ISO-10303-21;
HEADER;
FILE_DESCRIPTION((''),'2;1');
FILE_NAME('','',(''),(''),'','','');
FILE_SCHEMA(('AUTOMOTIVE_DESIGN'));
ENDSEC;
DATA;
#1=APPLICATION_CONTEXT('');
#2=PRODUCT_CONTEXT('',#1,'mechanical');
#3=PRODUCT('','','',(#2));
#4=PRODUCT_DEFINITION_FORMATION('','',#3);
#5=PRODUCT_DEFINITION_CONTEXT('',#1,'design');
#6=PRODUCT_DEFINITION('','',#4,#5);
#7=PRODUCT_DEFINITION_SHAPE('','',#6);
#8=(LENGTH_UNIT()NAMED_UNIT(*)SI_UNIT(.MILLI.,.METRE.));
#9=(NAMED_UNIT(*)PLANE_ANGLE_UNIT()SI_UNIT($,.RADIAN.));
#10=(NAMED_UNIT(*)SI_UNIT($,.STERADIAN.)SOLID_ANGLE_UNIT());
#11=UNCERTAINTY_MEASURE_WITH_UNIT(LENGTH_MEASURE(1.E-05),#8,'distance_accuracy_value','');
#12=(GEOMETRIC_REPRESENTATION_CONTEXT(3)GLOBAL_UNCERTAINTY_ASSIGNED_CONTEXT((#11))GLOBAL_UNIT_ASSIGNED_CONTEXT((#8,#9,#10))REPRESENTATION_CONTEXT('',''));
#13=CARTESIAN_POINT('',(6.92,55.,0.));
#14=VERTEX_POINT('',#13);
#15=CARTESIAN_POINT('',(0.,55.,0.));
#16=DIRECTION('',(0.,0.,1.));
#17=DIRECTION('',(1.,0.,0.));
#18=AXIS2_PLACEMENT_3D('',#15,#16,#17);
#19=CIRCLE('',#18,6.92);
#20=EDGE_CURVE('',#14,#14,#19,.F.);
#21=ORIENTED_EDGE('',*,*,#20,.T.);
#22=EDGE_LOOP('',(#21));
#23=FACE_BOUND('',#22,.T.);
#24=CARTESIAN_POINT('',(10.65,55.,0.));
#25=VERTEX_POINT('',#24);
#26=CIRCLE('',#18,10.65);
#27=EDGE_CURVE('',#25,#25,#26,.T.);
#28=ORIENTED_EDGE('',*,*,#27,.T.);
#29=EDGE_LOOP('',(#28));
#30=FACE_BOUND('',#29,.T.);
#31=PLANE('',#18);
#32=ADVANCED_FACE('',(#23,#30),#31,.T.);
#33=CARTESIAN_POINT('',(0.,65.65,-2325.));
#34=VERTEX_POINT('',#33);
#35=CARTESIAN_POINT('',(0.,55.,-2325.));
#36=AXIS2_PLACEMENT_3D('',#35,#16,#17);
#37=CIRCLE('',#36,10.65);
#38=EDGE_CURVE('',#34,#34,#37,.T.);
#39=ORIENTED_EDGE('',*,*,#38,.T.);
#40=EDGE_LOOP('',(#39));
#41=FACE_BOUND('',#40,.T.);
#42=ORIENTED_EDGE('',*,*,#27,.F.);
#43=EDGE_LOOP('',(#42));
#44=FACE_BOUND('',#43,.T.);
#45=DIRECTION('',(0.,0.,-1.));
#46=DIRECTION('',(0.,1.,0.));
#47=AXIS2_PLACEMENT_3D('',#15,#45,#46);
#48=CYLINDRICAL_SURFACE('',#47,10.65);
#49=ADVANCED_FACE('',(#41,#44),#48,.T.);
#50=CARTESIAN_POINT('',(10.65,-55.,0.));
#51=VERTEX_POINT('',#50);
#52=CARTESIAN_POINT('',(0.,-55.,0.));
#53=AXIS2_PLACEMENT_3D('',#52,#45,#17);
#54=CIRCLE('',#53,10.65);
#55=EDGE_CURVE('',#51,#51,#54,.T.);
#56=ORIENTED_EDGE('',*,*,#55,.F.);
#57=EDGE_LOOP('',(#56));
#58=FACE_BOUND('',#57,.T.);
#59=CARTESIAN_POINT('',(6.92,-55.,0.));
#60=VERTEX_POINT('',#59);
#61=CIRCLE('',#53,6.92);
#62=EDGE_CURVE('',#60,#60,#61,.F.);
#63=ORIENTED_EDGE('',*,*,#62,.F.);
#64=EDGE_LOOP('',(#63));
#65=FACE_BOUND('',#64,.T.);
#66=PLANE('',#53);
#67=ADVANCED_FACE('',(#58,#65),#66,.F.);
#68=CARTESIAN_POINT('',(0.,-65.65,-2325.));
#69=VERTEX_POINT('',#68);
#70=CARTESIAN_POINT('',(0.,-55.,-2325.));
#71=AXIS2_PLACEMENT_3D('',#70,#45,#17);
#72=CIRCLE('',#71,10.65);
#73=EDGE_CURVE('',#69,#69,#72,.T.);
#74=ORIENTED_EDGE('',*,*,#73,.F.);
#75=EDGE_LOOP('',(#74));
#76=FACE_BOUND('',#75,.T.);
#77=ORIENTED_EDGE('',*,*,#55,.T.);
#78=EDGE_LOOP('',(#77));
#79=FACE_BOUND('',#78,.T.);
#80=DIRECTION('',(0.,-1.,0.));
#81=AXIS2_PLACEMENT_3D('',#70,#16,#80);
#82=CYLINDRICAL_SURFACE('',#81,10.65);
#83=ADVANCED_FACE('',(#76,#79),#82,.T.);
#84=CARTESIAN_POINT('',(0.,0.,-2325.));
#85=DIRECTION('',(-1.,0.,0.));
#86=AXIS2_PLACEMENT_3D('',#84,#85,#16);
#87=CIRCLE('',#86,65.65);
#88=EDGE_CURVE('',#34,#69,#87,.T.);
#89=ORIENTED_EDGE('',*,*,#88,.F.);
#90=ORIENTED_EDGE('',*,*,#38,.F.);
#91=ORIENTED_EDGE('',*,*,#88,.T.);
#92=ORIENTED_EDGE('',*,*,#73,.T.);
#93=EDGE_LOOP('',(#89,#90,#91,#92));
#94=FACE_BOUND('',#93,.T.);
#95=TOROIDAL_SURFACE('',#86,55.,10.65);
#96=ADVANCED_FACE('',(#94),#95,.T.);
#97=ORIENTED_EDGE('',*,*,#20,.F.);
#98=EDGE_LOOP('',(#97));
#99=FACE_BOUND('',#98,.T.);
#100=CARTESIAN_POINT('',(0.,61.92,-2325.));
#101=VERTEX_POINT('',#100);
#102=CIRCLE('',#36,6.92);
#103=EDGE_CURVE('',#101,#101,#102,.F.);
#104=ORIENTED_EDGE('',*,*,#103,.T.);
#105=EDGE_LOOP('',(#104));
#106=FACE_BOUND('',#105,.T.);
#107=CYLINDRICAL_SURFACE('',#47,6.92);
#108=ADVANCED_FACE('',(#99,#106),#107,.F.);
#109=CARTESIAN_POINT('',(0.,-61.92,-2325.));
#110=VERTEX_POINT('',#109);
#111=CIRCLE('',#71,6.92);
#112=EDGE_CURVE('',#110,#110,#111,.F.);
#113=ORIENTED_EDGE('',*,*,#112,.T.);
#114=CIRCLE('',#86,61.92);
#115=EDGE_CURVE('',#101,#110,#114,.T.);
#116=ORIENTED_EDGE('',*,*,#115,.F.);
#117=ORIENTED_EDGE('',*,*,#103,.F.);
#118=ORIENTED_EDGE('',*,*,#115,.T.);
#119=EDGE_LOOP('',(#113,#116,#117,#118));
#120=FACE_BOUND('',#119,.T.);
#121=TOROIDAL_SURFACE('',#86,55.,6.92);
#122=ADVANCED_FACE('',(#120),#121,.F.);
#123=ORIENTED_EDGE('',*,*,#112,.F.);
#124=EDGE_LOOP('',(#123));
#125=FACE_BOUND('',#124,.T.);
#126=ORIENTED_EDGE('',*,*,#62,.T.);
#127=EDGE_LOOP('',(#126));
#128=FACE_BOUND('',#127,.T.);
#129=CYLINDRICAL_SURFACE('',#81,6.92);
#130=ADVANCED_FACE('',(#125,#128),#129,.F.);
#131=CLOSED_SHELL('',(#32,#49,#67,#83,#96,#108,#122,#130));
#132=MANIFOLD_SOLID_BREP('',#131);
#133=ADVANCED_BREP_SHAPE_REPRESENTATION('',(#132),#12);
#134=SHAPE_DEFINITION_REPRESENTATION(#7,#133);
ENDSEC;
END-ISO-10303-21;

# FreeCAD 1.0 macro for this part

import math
import FreeCAD as App
import Part
import Sketcher
Q = App.Units.Quantity

doc = App.newDocument("Part")
body = doc.addObject("PartDesign::Body", "Body")

# Sketch on XY plane
sketch1 = doc.addObject("Sketcher::SketchObject", "Sketch")
body.addObject(sketch1)
sketch1.AttachmentSupport = (doc.XY_Plane, [""])
sketch1.MapMode = "FlatFace"
sketch1.addGeometry(Part.Circle(App.Vector(0, 55, 0), App.Vector(0, 0, 1), 11), False)
sketch1.addGeometry(Part.Circle(App.Vector(0, 55, 0), App.Vector(0, 0, 1), 7), False)
sketch1.addConstraint(Sketcher.Constraint("Coincident", 1, 3, 0, 3))
sketch1.addConstraint(Sketcher.Constraint("PointOnObject", 0, 3, -2))
sketch1.addConstraint(Sketcher.Constraint("Diameter", 0, Q("21.3 mm")))
sketch1.addConstraint(Sketcher.Constraint("Diameter", 1, Q("13.84 mm")))
sketch1.addConstraint(Sketcher.Constraint("DistanceY", -1, 1, 0, 3, Q("55 mm")))

# Sketch on YZ plane
sketch2 = doc.addObject("Sketcher::SketchObject", "Sketch001")
body.addObject(sketch2)
sketch2.AttachmentSupport = (doc.YZ_Plane, [""])
sketch2.MapMode = "FlatFace"
sketch2.addGeometry(Part.LineSegment(App.Vector(55, 0, 0), App.Vector(55, -2325, 0)), False)
sketch2.addGeometry(Part.ArcOfCircle(Part.Circle(App.Vector(0, -2325, 0), App.Vector(0, 0, 1), 55), math.radians(180), math.radians(360)), False)
sketch2.addGeometry(Part.LineSegment(App.Vector(-55, -2325, 0), App.Vector(-55, 0, 0)), False)
sketch2.addConstraint(Sketcher.Constraint("Tangent", 0, 2, 1, 2))
sketch2.addConstraint(Sketcher.Constraint("Tangent", 1, 1, 2, 1))
sketch2.addConstraint(Sketcher.Constraint("Vertical", 0))
sketch2.addConstraint(Sketcher.Constraint("Vertical", 2))
sketch2.addConstraint(Sketcher.Constraint("Symmetric", 0, 1, 2, 2, -1, 1))
sketch2.addConstraint(Sketcher.Constraint("PointOnObject", 0, 1, -1))
sketch2.addConstraint(Sketcher.Constraint("Radius", 1, Q("55 mm")))
sketch2.addConstraint(Sketcher.Constraint("DistanceY", 0, 2, 0, 1, Q("2325 mm")))
doc.recompute()

additivepipe = doc.addObject("PartDesign::AdditivePipe", "AdditivePipe")
body.addObject(additivepipe)
additivepipe.Profile = sketch1
additivepipe.Spine = (sketch2, ["Edge1", "Edge2", "Edge3"])

doc.recompute()
